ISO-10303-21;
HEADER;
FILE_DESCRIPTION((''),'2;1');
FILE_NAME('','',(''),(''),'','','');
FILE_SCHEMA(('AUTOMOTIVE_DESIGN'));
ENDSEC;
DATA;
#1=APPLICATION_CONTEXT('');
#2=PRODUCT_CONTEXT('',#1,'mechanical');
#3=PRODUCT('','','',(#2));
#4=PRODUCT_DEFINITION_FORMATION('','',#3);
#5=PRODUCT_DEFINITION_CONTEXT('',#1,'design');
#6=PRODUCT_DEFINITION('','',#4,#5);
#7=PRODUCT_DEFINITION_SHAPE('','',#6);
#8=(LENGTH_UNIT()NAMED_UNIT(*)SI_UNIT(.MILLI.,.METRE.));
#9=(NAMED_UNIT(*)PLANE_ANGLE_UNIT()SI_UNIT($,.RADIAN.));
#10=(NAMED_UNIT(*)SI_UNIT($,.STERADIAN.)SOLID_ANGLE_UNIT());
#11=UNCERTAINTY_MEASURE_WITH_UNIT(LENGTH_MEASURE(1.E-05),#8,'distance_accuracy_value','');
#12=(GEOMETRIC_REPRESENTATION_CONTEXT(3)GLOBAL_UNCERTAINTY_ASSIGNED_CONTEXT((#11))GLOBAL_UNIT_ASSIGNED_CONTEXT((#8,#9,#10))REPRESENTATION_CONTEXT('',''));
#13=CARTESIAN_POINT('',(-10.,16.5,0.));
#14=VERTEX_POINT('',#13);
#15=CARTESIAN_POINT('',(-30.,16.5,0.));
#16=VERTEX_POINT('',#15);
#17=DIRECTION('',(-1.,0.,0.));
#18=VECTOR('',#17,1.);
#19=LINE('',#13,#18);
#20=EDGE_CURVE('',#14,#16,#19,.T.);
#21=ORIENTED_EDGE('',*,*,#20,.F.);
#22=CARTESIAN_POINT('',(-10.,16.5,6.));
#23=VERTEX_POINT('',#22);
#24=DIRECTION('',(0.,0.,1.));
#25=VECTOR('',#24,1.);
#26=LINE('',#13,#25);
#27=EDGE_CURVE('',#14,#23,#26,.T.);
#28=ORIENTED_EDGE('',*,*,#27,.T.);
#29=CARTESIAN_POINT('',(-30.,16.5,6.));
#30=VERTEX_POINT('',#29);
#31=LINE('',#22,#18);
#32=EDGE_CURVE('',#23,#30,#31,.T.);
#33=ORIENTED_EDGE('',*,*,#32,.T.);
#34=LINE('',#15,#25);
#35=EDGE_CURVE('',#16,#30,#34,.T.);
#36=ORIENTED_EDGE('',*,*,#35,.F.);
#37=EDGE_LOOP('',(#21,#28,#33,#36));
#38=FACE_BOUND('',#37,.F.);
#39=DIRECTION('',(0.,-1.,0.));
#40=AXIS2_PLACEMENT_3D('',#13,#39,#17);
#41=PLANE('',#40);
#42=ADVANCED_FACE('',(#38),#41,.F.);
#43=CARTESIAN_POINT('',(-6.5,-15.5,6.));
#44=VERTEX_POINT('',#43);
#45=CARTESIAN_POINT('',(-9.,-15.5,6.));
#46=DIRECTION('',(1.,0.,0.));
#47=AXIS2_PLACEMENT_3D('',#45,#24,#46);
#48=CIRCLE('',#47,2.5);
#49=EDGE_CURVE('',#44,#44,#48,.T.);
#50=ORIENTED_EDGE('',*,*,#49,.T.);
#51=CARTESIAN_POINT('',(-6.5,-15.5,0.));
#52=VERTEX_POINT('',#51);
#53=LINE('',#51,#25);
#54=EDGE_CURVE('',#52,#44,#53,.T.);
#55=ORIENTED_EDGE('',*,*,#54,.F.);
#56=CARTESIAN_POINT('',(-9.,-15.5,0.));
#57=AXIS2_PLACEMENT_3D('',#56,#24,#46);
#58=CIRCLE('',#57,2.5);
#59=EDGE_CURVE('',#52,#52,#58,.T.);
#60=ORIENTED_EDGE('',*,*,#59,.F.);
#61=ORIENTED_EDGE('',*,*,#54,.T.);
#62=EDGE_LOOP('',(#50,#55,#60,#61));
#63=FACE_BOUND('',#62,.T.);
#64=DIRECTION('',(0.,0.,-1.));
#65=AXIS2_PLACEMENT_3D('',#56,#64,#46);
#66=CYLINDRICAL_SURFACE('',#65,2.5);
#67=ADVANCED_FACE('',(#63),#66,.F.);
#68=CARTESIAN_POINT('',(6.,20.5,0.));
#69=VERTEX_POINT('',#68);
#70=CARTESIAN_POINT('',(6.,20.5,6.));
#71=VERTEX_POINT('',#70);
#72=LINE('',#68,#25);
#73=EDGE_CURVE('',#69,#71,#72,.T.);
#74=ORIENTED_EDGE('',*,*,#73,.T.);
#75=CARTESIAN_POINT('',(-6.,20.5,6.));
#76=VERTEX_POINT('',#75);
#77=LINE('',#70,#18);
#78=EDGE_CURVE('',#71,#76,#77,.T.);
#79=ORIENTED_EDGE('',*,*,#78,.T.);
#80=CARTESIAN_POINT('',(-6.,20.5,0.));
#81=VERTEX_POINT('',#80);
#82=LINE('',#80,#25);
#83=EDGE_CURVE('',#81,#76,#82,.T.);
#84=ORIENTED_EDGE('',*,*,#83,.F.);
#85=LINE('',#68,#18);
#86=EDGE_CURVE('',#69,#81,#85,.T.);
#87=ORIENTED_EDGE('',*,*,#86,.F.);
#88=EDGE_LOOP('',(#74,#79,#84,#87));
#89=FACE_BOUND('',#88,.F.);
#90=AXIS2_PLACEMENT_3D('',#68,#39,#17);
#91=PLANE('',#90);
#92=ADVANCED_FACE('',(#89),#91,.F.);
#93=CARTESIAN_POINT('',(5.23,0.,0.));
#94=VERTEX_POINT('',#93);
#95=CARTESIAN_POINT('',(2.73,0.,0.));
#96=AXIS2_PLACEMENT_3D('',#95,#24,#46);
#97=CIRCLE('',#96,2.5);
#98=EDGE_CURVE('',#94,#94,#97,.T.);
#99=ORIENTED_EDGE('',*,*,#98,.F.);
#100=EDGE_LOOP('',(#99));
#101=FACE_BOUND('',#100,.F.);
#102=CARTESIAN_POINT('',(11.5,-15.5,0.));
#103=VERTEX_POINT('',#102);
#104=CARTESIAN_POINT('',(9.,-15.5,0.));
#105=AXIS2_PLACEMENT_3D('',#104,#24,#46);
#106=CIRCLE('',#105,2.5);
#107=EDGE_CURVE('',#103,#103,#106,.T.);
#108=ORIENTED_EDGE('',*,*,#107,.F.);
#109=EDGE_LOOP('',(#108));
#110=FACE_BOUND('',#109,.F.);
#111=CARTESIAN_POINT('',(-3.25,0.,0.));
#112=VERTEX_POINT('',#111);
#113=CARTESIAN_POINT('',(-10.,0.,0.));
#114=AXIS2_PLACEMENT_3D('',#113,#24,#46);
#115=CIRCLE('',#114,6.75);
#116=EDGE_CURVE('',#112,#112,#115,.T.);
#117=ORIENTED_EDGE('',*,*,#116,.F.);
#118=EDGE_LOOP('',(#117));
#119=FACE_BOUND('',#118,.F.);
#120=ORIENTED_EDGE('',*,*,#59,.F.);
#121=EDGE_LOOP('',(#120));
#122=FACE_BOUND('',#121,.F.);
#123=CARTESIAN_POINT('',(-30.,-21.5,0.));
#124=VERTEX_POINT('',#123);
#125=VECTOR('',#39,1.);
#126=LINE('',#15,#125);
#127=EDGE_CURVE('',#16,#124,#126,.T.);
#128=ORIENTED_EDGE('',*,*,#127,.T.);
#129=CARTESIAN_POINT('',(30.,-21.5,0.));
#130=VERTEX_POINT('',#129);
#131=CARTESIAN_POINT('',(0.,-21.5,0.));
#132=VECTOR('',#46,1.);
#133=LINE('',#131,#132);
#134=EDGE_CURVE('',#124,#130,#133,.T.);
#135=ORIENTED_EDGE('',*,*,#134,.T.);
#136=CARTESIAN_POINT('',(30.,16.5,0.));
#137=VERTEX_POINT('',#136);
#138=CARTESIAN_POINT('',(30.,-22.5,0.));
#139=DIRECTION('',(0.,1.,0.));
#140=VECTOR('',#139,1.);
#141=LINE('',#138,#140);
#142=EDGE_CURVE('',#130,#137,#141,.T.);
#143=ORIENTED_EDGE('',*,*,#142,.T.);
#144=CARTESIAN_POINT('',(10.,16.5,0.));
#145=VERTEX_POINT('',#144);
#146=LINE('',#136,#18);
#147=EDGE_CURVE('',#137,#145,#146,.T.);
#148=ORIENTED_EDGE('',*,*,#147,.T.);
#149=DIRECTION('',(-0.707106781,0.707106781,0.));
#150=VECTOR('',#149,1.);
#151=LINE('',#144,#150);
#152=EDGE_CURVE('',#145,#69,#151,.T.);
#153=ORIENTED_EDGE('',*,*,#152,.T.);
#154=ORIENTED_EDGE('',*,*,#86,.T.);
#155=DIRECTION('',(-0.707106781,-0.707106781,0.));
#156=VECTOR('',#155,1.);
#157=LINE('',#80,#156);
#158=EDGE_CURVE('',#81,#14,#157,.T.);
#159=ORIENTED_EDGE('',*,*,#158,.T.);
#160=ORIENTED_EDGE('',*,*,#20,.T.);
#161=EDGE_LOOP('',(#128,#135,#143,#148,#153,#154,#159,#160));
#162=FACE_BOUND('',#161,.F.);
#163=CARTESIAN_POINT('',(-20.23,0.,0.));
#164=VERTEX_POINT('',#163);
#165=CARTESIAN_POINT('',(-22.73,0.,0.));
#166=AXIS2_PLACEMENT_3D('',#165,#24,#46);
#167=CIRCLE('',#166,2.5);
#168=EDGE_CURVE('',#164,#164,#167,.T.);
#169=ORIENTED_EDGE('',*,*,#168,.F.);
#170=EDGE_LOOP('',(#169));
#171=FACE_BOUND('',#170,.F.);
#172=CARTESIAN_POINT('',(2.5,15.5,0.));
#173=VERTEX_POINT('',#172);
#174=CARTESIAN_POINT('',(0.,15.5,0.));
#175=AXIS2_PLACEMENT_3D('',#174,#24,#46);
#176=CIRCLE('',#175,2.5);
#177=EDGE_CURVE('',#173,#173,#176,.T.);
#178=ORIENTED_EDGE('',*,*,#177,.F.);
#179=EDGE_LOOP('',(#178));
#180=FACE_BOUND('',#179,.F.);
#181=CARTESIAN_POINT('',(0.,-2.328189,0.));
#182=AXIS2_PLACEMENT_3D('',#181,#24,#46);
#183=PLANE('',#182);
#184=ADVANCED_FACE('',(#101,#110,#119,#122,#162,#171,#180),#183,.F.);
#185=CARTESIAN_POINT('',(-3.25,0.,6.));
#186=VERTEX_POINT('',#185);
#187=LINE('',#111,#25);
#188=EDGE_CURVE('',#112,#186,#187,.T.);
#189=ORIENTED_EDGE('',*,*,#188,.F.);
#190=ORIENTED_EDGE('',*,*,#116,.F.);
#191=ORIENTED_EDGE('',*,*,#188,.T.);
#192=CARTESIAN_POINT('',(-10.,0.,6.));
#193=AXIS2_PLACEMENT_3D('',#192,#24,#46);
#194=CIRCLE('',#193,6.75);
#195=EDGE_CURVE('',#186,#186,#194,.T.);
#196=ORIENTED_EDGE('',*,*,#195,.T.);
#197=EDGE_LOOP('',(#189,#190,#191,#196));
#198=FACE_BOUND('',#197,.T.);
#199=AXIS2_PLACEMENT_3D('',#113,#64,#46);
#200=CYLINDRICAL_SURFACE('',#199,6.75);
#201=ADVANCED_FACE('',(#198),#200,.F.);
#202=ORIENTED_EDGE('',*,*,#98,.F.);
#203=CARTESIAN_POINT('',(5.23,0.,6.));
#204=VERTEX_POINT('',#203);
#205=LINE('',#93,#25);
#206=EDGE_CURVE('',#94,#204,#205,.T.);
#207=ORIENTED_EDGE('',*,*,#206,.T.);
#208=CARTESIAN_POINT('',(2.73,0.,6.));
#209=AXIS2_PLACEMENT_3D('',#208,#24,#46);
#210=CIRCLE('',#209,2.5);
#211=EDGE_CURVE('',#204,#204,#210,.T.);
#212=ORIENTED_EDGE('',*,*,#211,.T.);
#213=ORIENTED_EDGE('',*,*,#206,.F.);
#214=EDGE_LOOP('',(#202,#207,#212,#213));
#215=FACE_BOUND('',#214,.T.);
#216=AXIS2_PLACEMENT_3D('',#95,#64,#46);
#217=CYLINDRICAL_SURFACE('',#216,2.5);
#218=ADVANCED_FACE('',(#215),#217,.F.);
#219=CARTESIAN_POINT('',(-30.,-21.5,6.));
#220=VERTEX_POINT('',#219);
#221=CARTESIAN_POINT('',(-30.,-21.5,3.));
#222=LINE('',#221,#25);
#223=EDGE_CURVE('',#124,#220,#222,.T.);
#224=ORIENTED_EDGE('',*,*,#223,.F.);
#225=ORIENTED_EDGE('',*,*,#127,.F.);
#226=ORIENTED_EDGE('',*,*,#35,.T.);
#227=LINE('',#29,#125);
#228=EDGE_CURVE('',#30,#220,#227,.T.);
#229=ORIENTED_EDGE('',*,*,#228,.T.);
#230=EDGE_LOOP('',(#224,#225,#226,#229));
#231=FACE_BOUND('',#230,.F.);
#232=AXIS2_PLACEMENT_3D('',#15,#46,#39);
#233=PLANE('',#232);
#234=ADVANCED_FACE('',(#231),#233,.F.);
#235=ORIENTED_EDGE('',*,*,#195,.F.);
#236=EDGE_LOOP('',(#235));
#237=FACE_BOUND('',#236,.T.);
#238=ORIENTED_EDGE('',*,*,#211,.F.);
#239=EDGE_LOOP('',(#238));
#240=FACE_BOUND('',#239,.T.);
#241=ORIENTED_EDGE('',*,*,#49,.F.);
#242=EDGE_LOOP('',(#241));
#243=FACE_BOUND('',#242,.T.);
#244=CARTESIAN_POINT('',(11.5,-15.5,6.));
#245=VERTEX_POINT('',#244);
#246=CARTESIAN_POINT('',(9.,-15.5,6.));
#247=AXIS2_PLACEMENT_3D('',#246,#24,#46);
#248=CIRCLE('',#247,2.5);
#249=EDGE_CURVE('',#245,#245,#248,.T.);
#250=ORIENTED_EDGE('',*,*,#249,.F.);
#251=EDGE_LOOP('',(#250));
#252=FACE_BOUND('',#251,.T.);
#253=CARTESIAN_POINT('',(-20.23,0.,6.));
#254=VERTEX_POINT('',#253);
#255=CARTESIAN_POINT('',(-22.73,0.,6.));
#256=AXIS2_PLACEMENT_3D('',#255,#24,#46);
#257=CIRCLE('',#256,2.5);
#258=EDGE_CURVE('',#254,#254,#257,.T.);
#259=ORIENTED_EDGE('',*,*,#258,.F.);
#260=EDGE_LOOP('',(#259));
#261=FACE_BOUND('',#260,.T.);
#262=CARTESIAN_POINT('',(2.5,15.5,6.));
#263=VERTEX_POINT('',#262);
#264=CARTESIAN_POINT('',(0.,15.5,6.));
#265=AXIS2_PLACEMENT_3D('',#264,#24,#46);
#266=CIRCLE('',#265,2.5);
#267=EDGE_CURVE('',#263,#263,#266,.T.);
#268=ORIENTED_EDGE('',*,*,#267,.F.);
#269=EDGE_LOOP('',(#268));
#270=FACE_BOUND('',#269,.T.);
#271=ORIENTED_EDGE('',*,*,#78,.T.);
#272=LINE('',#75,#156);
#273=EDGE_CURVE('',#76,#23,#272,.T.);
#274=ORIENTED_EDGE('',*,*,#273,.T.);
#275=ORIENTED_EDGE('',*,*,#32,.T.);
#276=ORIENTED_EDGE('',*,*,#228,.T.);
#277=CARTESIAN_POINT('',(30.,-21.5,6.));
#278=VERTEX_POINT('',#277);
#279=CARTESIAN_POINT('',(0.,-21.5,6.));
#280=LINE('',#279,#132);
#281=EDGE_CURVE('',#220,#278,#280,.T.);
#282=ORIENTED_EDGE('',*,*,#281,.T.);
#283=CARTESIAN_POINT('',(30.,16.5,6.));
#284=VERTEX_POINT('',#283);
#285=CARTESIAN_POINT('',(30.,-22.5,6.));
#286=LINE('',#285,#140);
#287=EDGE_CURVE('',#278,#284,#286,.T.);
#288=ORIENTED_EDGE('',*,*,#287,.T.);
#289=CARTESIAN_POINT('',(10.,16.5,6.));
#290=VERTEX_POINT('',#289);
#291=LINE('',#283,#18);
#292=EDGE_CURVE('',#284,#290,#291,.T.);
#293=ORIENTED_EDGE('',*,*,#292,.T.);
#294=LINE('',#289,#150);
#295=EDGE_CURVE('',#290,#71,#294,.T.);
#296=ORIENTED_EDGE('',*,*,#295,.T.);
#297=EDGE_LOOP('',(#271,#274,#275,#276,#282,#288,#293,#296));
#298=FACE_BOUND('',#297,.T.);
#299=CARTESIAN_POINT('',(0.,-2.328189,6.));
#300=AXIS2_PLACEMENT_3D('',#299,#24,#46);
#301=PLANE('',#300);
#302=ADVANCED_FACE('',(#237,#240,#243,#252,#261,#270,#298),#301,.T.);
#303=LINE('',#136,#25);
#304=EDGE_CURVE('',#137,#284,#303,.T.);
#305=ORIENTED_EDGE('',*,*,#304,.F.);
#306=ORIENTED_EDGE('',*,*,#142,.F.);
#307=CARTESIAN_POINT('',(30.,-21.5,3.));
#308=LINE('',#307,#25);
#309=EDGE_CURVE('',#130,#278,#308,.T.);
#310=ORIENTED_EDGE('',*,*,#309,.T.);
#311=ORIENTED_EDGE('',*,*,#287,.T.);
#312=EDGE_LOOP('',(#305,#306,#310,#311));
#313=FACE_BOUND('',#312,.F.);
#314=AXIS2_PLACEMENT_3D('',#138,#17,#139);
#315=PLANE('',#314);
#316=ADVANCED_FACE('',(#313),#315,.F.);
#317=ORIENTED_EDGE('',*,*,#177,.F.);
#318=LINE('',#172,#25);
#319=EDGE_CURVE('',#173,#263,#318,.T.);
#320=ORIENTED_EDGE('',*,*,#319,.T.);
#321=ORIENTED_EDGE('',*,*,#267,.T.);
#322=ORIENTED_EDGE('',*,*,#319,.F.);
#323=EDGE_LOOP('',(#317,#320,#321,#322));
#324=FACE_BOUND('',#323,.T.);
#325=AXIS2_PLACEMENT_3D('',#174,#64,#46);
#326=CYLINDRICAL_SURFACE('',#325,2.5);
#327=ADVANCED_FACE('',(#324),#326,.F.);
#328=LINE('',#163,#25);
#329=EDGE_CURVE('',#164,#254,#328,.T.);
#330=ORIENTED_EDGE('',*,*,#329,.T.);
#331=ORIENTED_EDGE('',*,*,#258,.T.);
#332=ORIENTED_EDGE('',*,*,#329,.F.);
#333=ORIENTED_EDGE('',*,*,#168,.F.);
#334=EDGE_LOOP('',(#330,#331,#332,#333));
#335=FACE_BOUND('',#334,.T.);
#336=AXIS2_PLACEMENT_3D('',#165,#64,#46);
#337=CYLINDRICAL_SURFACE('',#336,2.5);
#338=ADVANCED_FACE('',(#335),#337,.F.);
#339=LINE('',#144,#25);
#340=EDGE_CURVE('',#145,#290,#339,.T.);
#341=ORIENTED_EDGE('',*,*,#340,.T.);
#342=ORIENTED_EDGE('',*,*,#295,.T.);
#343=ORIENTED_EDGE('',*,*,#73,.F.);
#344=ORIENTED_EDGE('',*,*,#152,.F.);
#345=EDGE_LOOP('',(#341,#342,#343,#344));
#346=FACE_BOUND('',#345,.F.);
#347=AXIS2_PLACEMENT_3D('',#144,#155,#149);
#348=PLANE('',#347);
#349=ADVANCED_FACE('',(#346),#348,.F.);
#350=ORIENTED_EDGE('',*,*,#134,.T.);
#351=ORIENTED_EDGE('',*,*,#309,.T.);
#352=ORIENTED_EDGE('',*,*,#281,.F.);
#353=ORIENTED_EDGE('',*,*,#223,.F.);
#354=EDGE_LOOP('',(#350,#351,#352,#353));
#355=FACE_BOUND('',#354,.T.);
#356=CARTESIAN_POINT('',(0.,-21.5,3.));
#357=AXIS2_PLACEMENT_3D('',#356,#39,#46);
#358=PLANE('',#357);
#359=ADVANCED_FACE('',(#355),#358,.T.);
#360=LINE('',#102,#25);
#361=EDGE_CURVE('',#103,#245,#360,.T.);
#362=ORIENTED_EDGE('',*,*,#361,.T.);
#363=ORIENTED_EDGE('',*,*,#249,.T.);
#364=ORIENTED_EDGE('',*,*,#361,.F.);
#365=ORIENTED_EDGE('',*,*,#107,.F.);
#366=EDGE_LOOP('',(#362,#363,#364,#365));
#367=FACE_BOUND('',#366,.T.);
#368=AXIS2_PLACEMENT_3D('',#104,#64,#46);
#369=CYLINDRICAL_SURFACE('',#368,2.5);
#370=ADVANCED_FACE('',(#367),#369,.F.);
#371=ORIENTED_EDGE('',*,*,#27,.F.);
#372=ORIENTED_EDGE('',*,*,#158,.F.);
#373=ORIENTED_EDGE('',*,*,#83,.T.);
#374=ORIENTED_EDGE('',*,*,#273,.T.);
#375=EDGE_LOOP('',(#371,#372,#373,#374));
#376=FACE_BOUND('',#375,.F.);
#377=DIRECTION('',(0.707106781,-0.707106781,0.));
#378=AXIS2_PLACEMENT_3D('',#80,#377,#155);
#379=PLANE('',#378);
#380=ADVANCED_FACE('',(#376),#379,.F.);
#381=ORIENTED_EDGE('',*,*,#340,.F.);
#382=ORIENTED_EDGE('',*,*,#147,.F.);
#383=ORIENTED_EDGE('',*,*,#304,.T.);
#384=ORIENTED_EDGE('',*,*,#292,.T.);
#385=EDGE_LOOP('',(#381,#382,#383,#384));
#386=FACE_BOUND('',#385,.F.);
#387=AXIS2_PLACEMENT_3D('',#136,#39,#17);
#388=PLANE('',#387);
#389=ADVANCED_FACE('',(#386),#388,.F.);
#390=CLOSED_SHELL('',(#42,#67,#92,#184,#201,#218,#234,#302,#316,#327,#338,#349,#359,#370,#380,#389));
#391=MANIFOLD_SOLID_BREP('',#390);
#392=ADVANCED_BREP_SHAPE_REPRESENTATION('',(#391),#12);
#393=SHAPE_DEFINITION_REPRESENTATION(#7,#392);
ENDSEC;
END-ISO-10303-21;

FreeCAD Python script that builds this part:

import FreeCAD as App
import Part
import Sketcher
from FreeCAD import Vector
Q = App.Units.Quantity

doc = App.newDocument("Part")
body = doc.addObject("PartDesign::Body", "Body")

# Sketch on XY plane
sketch1 = doc.addObject("Sketcher::SketchObject", "Sketch")
body.addObject(sketch1)
sketch1.AttachmentSupport = (doc.XY_Plane, [""])
sketch1.MapMode = "FlatFace"
sketch1.addGeometry([
    Part.LineSegment(Vector(30, 16.5, 0), Vector(10, 16.5, 0)),  # 0
    Part.LineSegment(Vector(10, 16.5, 0), Vector(6, 20.5, 0)),  # 1
    Part.LineSegment(Vector(6, 20.5, 0), Vector(-6, 20.5, 0)),  # 2
    Part.LineSegment(Vector(-6, 20.5, 0), Vector(-10, 16.5, 0)),  # 3
    Part.LineSegment(Vector(-10, 16.5, 0), Vector(-30, 16.5, 0)),  # 4
    Part.LineSegment(Vector(-30, 16.5, 0), Vector(-30, -22.5, 0)),  # 5
    Part.LineSegment(Vector(-30, -22.5, 0), Vector(30, -22.5, 0)),  # 6
    Part.LineSegment(Vector(30, -22.5, 0), Vector(30, 16.5, 0)),  # 7
    Part.Circle(Vector(-9, -15.5, 0), Vector(0, 0, 1), 2.5),  # 8
    Part.Circle(Vector(9, -15.5, 0), Vector(0, 0, 1), 2.5),  # 9
    Part.Circle(Vector(-22.7, 0, 0), Vector(0, 0, 1), 2.5),  # 10
    Part.Circle(Vector(-10, 0, 0), Vector(0, 0, 1), 6.8),  # 11
    Part.Circle(Vector(2.7, 0, 0), Vector(0, 0, 1), 2.5),  # 12
    Part.Circle(Vector(0, 15.5, 0), Vector(0, 0, 1), 2.5),  # 13
], False)
sketch1.addConstraint([
    Sketcher.Constraint("Coincident", 0, 2, 1, 1),
    Sketcher.Constraint("Coincident", 1, 2, 2, 1),
    Sketcher.Constraint("Coincident", 2, 2, 3, 1),
    Sketcher.Constraint("Coincident", 3, 2, 4, 1),
    Sketcher.Constraint("Coincident", 4, 2, 5, 1),
    Sketcher.Constraint("Coincident", 5, 2, 6, 1),
    Sketcher.Constraint("Coincident", 6, 2, 7, 1),
    Sketcher.Constraint("Coincident", 7, 2, 0, 1),
    Sketcher.Constraint("Horizontal", 0),
    Sketcher.Constraint("Horizontal", 2),
    Sketcher.Constraint("Horizontal", 4),
    Sketcher.Constraint("Vertical", 5),
    Sketcher.Constraint("Horizontal", 6),
    Sketcher.Constraint("Vertical", 7),
    Sketcher.Constraint("Equal", 8, 9),
    Sketcher.Constraint("Equal", 9, 10),
    Sketcher.Constraint("Equal", 10, 12),
    Sketcher.Constraint("Equal", 12, 13),
    Sketcher.Constraint("Symmetric", 8, 3, 9, 3, -2),
    Sketcher.Constraint("Symmetric", 0, 2, 3, 2, -2),
    Sketcher.Constraint("PointOnObject", 10, 3, -1),
    Sketcher.Constraint("PointOnObject", 11, 3, -1),
    Sketcher.Constraint("PointOnObject", 12, 3, -1),
    Sketcher.Constraint("PointOnObject", 13, 3, -2),
    Sketcher.Constraint("Perpendicular", 1, 3),
    Sketcher.Constraint("Vertical", 11, 3, 3, 2),
    Sketcher.Constraint("Equal", 0, 4),
    Sketcher.Constraint("Equal", 1, 3),
    Sketcher.Constraint("Diameter", 8, Q("5 mm")),
    Sketcher.Constraint("Diameter", 11, Q("13.5 mm")),
    Sketcher.Constraint("DistanceX", 0, 2, 0, 1, Q("20 mm")),
    Sketcher.Constraint("DistanceX", 2, 2, 2, 1, Q("12 mm")),
    Sketcher.Constraint("DistanceX", 6, 1, 6, 2, Q("60 mm")),
    Sketcher.Constraint("DistanceY", 5, 2, 5, 1, Q("39 mm")),
    Sketcher.Constraint("DistanceX", 8, 3, -1, 1, Q("9 mm")),
    Sketcher.Constraint("DistanceY", 8, 3, 13, 3, Q("31 mm")),
    Sketcher.Constraint("DistanceY", 13, 3, 0, 2, Q("1 mm")),
    Sketcher.Constraint("DistanceY", 8, 3, -1, 1, Q("15.5 mm")),
    Sketcher.Constraint("DistanceX", 10, 3, -1, 1, Q("22.73 mm")),
    Sketcher.Constraint("DistanceX", -1, 1, 12, 3, Q("2.73 mm")),
])
pad1 = doc.addObject("PartDesign::Pad", "Pad")
body.addObject(pad1)
pad1.Profile = sketch1
pad1.Length = 6

# Sketch on XZ plane
sketch2 = doc.addObject("Sketcher::SketchObject", "Sketch001")
body.addObject(sketch2)
sketch2.AttachmentSupport = (doc.XZ_Plane, [""])
sketch2.MapMode = "FlatFace"
sketch2.AttachmentOffset = App.Placement(Vector(0, 0, 22.5), App.Rotation())
sketch2.addGeometry([
    Part.LineSegment(Vector(-30, 6, 0), Vector(-30, 0, 0)),
    Part.LineSegment(Vector(-30, 0, 0), Vector(30, 0, 0)),
    Part.LineSegment(Vector(30, 0, 0), Vector(30, 6, 0)),
    Part.LineSegment(Vector(30, 6, 0), Vector(-30, 6, 0)),
], False)
sketch2.addConstraint([
    Sketcher.Constraint("Coincident", 0, 2, 1, 1),
    Sketcher.Constraint("Coincident", 1, 2, 2, 1),
    Sketcher.Constraint("Coincident", 2, 2, 3, 1),
    Sketcher.Constraint("Coincident", 3, 2, 0, 1),
    Sketcher.Constraint("Vertical", 0),
    Sketcher.Constraint("Horizontal", 1),
    Sketcher.Constraint("Vertical", 2),
    Sketcher.Constraint("Horizontal", 3),
    Sketcher.Constraint("Symmetric", 0, 2, 1, 2, -1, 1),
    Sketcher.Constraint("DistanceX", 1, 1, 1, 2, Q("60 mm")),
    Sketcher.Constraint("DistanceY", 0, 2, 0, 1, Q("6 mm")),
])
pocket1 = doc.addObject("PartDesign::Pocket", "Pocket")
body.addObject(pocket1)
pocket1.Profile = sketch2
pocket1.Length = 1

doc.recompute()
